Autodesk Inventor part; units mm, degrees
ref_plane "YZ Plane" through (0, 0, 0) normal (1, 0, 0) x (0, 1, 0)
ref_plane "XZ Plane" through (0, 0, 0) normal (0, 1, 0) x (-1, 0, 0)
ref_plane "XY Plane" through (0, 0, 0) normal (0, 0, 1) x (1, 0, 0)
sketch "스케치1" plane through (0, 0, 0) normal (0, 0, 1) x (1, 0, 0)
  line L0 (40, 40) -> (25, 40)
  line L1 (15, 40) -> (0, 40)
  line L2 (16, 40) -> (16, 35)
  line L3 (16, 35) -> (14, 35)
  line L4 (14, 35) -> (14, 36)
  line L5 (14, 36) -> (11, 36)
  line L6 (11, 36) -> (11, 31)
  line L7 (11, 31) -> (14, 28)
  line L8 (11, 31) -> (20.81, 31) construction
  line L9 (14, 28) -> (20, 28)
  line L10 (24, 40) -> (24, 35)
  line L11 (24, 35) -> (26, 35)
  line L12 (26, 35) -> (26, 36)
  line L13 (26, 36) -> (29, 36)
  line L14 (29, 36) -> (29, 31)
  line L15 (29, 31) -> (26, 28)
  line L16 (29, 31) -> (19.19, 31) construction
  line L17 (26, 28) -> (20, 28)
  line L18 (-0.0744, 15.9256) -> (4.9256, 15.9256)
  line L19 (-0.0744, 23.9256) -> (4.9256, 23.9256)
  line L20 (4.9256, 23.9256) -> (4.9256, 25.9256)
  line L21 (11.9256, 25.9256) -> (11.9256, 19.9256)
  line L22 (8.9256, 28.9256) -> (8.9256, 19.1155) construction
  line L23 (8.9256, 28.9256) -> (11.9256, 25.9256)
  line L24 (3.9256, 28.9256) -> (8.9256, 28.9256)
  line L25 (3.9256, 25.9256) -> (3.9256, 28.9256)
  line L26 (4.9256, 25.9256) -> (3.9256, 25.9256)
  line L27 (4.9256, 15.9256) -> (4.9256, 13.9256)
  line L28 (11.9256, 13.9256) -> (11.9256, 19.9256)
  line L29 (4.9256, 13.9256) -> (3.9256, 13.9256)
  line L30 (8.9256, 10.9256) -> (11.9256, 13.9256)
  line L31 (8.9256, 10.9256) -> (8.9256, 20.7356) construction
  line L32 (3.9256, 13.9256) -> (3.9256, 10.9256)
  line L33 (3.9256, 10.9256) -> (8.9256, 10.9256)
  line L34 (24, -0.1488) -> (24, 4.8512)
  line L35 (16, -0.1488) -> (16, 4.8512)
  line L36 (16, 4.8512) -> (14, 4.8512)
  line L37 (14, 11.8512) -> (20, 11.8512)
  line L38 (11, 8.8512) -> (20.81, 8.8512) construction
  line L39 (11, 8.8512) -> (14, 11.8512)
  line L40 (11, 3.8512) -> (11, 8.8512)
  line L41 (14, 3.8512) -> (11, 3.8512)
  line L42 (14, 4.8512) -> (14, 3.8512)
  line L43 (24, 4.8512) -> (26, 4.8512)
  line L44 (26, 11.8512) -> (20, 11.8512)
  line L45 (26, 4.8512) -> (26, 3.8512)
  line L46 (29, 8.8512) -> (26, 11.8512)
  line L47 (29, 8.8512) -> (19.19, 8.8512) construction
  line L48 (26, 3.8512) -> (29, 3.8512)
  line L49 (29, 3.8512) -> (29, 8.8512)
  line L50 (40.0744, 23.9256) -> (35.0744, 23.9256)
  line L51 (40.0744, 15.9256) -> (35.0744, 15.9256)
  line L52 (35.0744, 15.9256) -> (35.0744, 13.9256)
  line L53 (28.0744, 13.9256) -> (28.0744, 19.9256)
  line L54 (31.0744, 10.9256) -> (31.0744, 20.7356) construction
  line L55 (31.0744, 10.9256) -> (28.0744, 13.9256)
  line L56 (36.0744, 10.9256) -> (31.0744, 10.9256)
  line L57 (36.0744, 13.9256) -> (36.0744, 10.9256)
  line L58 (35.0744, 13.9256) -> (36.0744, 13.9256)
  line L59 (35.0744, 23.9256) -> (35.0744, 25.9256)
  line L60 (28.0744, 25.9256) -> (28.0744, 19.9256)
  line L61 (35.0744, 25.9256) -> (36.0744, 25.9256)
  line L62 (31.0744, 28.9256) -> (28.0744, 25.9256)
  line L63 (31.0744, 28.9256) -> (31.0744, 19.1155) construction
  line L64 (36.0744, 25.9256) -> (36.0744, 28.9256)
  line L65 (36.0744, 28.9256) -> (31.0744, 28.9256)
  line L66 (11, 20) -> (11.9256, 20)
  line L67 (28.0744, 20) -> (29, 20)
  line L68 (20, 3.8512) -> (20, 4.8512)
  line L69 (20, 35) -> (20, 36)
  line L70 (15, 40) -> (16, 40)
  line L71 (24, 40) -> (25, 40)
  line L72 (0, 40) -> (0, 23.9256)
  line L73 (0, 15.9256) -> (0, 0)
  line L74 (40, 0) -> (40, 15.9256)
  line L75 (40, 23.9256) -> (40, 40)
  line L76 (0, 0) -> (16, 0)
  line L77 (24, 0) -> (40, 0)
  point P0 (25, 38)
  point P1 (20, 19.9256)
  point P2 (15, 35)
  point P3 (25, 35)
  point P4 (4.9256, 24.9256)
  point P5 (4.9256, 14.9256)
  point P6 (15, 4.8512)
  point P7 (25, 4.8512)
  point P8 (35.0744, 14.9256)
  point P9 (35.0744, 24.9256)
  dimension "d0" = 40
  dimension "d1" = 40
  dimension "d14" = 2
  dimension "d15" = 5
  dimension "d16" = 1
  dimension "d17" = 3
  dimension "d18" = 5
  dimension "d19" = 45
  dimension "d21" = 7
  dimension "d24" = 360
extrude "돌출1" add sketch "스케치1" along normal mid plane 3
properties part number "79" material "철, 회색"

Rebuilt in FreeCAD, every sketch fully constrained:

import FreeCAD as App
import Part
import Sketcher
from FreeCAD import Vector
Q = App.Units.Quantity

doc = App.newDocument("Part")
body = doc.addObject("PartDesign::Body", "Body")

# Sketch on XY plane
sketch1 = body.newObject("Sketcher::SketchObject", "Sketch")
sketch1.AttachmentSupport = (doc.getObject("XY_Plane"), [""])
sketch1.MapMode = "FlatFace"
sketch1.addGeometry([
    Part.LineSegment(Vector(40, 23.9256, 0), Vector(40, 40, 0)),  # 0
    Part.LineSegment(Vector(40, 40, 0), Vector(24, 40, 0)),  # 1
    Part.LineSegment(Vector(24, 40, 0), Vector(24, 35, 0)),  # 2
    Part.LineSegment(Vector(24, 35, 0), Vector(26, 35, 0)),  # 3
    Part.LineSegment(Vector(26, 35, 0), Vector(26, 36, 0)),  # 4
    Part.LineSegment(Vector(26, 36, 0), Vector(29, 36, 0)),  # 5
    Part.LineSegment(Vector(29, 36, 0), Vector(29, 31, 0)),  # 6
    Part.LineSegment(Vector(29, 31, 0), Vector(26, 28, 0)),  # 7
    Part.LineSegment(Vector(26, 28, 0), Vector(14, 28, 0)),  # 8
    Part.LineSegment(Vector(14, 28, 0), Vector(11, 31, 0)),  # 9
    Part.LineSegment(Vector(11, 31, 0), Vector(11, 36, 0)),  # 10
    Part.LineSegment(Vector(11, 36, 0), Vector(14, 36, 0)),  # 11
    Part.LineSegment(Vector(14, 36, 0), Vector(14, 35, 0)),  # 12
    Part.LineSegment(Vector(14, 35, 0), Vector(16, 35, 0)),  # 13
    Part.LineSegment(Vector(16, 35, 0), Vector(16, 40, 0)),  # 14
    Part.LineSegment(Vector(16, 40, 0), Vector(0, 40, 0)),  # 15
    Part.LineSegment(Vector(0, 40, 0), Vector(0, 23.9256, 0)),  # 16
    Part.LineSegment(Vector(0, 23.9256, 0), Vector(4.9256, 23.9256, 0)),  # 17
    Part.LineSegment(Vector(4.9256, 23.9256, 0), Vector(4.9256, 25.9256, 0)),  # 18
    Part.LineSegment(Vector(4.9256, 25.9256, 0), Vector(3.9256, 25.9256, 0)),  # 19
    Part.LineSegment(Vector(3.9256, 25.9256, 0), Vector(3.9256, 28.9256, 0)),  # 20
    Part.LineSegment(Vector(3.9256, 28.9256, 0), Vector(8.9256, 28.9256, 0)),  # 21
    Part.LineSegment(Vector(8.9256, 28.9256, 0), Vector(11.9256, 25.9256, 0)),  # 22
    Part.LineSegment(Vector(11.9256, 25.9256, 0), Vector(11.9256, 13.9256, 0)),  # 23
    Part.LineSegment(Vector(11.9256, 13.9256, 0), Vector(8.9256, 10.9256, 0)),  # 24
    Part.LineSegment(Vector(8.9256, 10.9256, 0), Vector(3.9256, 10.9256, 0)),  # 25
    Part.LineSegment(Vector(3.9256, 10.9256, 0), Vector(3.9256, 13.9256, 0)),  # 26
    Part.LineSegment(Vector(3.9256, 13.9256, 0), Vector(4.9256, 13.9256, 0)),  # 27
    Part.LineSegment(Vector(4.9256, 13.9256, 0), Vector(4.9256, 15.9256, 0)),  # 28
    Part.LineSegment(Vector(4.9256, 15.9256, 0), Vector(0, 15.9256, 0)),  # 29
    Part.LineSegment(Vector(0, 15.9256, 0), Vector(0, 0, 0)),  # 30
    Part.LineSegment(Vector(0, 0, 0), Vector(16, 0, 0)),  # 31
    Part.LineSegment(Vector(16, 0, 0), Vector(16, 4.8512, 0)),  # 32
    Part.LineSegment(Vector(16, 4.8512, 0), Vector(14, 4.8512, 0)),  # 33
    Part.LineSegment(Vector(14, 4.8512, 0), Vector(14, 3.8512, 0)),  # 34
    Part.LineSegment(Vector(14, 3.8512, 0), Vector(11, 3.8512, 0)),  # 35
    Part.LineSegment(Vector(11, 3.8512, 0), Vector(11, 8.8512, 0)),  # 36
    Part.LineSegment(Vector(11, 8.8512, 0), Vector(14, 11.8512, 0)),  # 37
    Part.LineSegment(Vector(14, 11.8512, 0), Vector(26, 11.8512, 0)),  # 38
    Part.LineSegment(Vector(26, 11.8512, 0), Vector(29, 8.8512, 0)),  # 39
    Part.LineSegment(Vector(29, 8.8512, 0), Vector(29, 3.8512, 0)),  # 40
    Part.LineSegment(Vector(29, 3.8512, 0), Vector(26, 3.8512, 0)),  # 41
    Part.LineSegment(Vector(26, 3.8512, 0), Vector(26, 4.8512, 0)),  # 42
    Part.LineSegment(Vector(26, 4.8512, 0), Vector(24, 4.8512, 0)),  # 43
    Part.LineSegment(Vector(24, 4.8512, 0), Vector(24, 0, 0)),  # 44
    Part.LineSegment(Vector(24, 0, 0), Vector(40, 0, 0)),  # 45
    Part.LineSegment(Vector(40, 0, 0), Vector(40, 15.9256, 0)),  # 46
    Part.LineSegment(Vector(40, 15.9256, 0), Vector(35.0744, 15.9256, 0)),  # 47
    Part.LineSegment(Vector(35.0744, 15.9256, 0), Vector(35.0744, 13.9256, 0)),  # 48
    Part.LineSegment(Vector(35.0744, 13.9256, 0), Vector(36.0744, 13.9256, 0)),  # 49
    Part.LineSegment(Vector(36.0744, 13.9256, 0), Vector(36.0744, 10.9256, 0)),  # 50
    Part.LineSegment(Vector(36.0744, 10.9256, 0), Vector(31.0744, 10.9256, 0)),  # 51
    Part.LineSegment(Vector(31.0744, 10.9256, 0), Vector(28.0744, 13.9256, 0)),  # 52
    Part.LineSegment(Vector(28.0744, 13.9256, 0), Vector(28.0744, 25.9256, 0)),  # 53
    Part.LineSegment(Vector(28.0744, 25.9256, 0), Vector(31.0744, 28.9256, 0)),  # 54
    Part.LineSegment(Vector(31.0744, 28.9256, 0), Vector(36.0744, 28.9256, 0)),  # 55
    Part.LineSegment(Vector(36.0744, 28.9256, 0), Vector(36.0744, 25.9256, 0)),  # 56
    Part.LineSegment(Vector(36.0744, 25.9256, 0), Vector(35.0744, 25.9256, 0)),  # 57
    Part.LineSegment(Vector(35.0744, 25.9256, 0), Vector(35.0744, 23.9256, 0)),  # 58
    Part.LineSegment(Vector(35.0744, 23.9256, 0), Vector(40, 23.9256, 0)),  # 59
], False)
sketch1.addConstraint([
    Sketcher.Constraint("Coincident", 0, 2, 1, 1),
    Sketcher.Constraint("Coincident", 1, 2, 2, 1),
    Sketcher.Constraint("Coincident", 2, 2, 3, 1),
    Sketcher.Constraint("Coincident", 3, 2, 4, 1),
    Sketcher.Constraint("Coincident", 4, 2, 5, 1),
    Sketcher.Constraint("Coincident", 5, 2, 6, 1),
    Sketcher.Constraint("Coincident", 6, 2, 7, 1),
    Sketcher.Constraint("Coincident", 7, 2, 8, 1),
    Sketcher.Constraint("Coincident", 8, 2, 9, 1),
    Sketcher.Constraint("Coincident", 9, 2, 10, 1),
    Sketcher.Constraint("Coincident", 10, 2, 11, 1),
    Sketcher.Constraint("Coincident", 11, 2, 12, 1),
    Sketcher.Constraint("Coincident", 12, 2, 13, 1),
    Sketcher.Constraint("Coincident", 13, 2, 14, 1),
    Sketcher.Constraint("Coincident", 14, 2, 15, 1),
    Sketcher.Constraint("Coincident", 15, 2, 16, 1),
    Sketcher.Constraint("Coincident", 16, 2, 17, 1),
    Sketcher.Constraint("Coincident", 17, 2, 18, 1),
    Sketcher.Constraint("Coincident", 18, 2, 19, 1),
    Sketcher.Constraint("Coincident", 19, 2, 20, 1),
    Sketcher.Constraint("Coincident", 20, 2, 21, 1),
    Sketcher.Constraint("Coincident", 21, 2, 22, 1),
    Sketcher.Constraint("Coincident", 22, 2, 23, 1),
    Sketcher.Constraint("Coincident", 23, 2, 24, 1),
    Sketcher.Constraint("Coincident", 24, 2, 25, 1),
    Sketcher.Constraint("Coincident", 25, 2, 26, 1),
    Sketcher.Constraint("Coincident", 26, 2, 27, 1),
    Sketcher.Constraint("Coincident", 27, 2, 28, 1),
    Sketcher.Constraint("Coincident", 28, 2, 29, 1),
    Sketcher.Constraint("Coincident", 29, 2, 30, 1),
    Sketcher.Constraint("Coincident", 30, 2, 31, 1),
    Sketcher.Constraint("Coincident", 31, 2, 32, 1),
    Sketcher.Constraint("Coincident", 32, 2, 33, 1),
    Sketcher.Constraint("Coincident", 33, 2, 34, 1),
    Sketcher.Constraint("Coincident", 34, 2, 35, 1),
    Sketcher.Constraint("Coincident", 35, 2, 36, 1),
    Sketcher.Constraint("Coincident", 36, 2, 37, 1),
    Sketcher.Constraint("Coincident", 37, 2, 38, 1),
    Sketcher.Constraint("Coincident", 38, 2, 39, 1),
    Sketcher.Constraint("Coincident", 39, 2, 40, 1),
    Sketcher.Constraint("Coincident", 40, 2, 41, 1),
    Sketcher.Constraint("Coincident", 41, 2, 42, 1),
    Sketcher.Constraint("Coincident", 42, 2, 43, 1),
    Sketcher.Constraint("Coincident", 43, 2, 44, 1),
    Sketcher.Constraint("Coincident", 44, 2, 45, 1),
    Sketcher.Constraint("Coincident", 45, 2, 46, 1),
    Sketcher.Constraint("Coincident", 46, 2, 47, 1),
    Sketcher.Constraint("Coincident", 47, 2, 48, 1),
    Sketcher.Constraint("Coincident", 48, 2, 49, 1),
    Sketcher.Constraint("Coincident", 49, 2, 50, 1),
    Sketcher.Constraint("Coincident", 50, 2, 51, 1),
    Sketcher.Constraint("Coincident", 51, 2, 52, 1),
    Sketcher.Constraint("Coincident", 52, 2, 53, 1),
    Sketcher.Constraint("Coincident", 53, 2, 54, 1),
    Sketcher.Constraint("Coincident", 54, 2, 55, 1),
    Sketcher.Constraint("Coincident", 55, 2, 56, 1),
    Sketcher.Constraint("Coincident", 56, 2, 57, 1),
    Sketcher.Constraint("Coincident", 57, 2, 58, 1),
    Sketcher.Constraint("Coincident", 58, 2, 59, 1),
    Sketcher.Constraint("Coincident", 59, 2, 0, 1),
    Sketcher.Constraint("Vertical", 0),
    Sketcher.Constraint("Horizontal", 1),
    Sketcher.Constraint("Vertical", 2),
    Sketcher.Constraint("Horizontal", 3),
    Sketcher.Constraint("Vertical", 4),
    Sketcher.Constraint("Horizontal", 5),
    Sketcher.Constraint("Vertical", 6),
    Sketcher.Constraint("Horizontal", 8),
    Sketcher.Constraint("Vertical", 10),
    Sketcher.Constraint("Horizontal", 11),
    Sketcher.Constraint("Vertical", 12),
    Sketcher.Constraint("Horizontal", 13),
    Sketcher.Constraint("Vertical", 14),
    Sketcher.Constraint("Horizontal", 15),
    Sketcher.Constraint("Vertical", 16),
    Sketcher.Constraint("Horizontal", 17),
    Sketcher.Constraint("Vertical", 18),
    Sketcher.Constraint("Horizontal", 19),
    Sketcher.Constraint("Vertical", 20),
    Sketcher.Constraint("Horizontal", 21),
    Sketcher.Constraint("Vertical", 23),
    Sketcher.Constraint("Horizontal", 25),
    Sketcher.Constraint("Vertical", 26),
    Sketcher.Constraint("Horizontal", 27),
    Sketcher.Constraint("Vertical", 28),
    Sketcher.Constraint("Horizontal", 29),
    Sketcher.Constraint("Vertical", 30),
    Sketcher.Constraint("Horizontal", 31),
    Sketcher.Constraint("Vertical", 32),
    Sketcher.Constraint("Horizontal", 33),
    Sketcher.Constraint("Vertical", 34),
    Sketcher.Constraint("Horizontal", 35),
    Sketcher.Constraint("Vertical", 36),
    Sketcher.Constraint("Horizontal", 38),
    Sketcher.Constraint("Vertical", 40),
    Sketcher.Constraint("Horizontal", 41),
    Sketcher.Constraint("Vertical", 42),
    Sketcher.Constraint("Horizontal", 43),
    Sketcher.Constraint("Vertical", 44),
    Sketcher.Constraint("Horizontal", 45),
    Sketcher.Constraint("Vertical", 46),
    Sketcher.Constraint("Horizontal", 47),
    Sketcher.Constraint("Vertical", 48),
    Sketcher.Constraint("Horizontal", 49),
    Sketcher.Constraint("Vertical", 50),
    Sketcher.Constraint("Horizontal", 51),
    Sketcher.Constraint("Vertical", 53),
    Sketcher.Constraint("Horizontal", 55),
    Sketcher.Constraint("Vertical", 56),
    Sketcher.Constraint("Horizontal", 57),
    Sketcher.Constraint("Vertical", 58),
    Sketcher.Constraint("Horizontal", 59),
    Sketcher.Constraint("Coincident", 30, 2, -1, 1),
    Sketcher.Constraint("PointOnObject", 15, 2, -2),
    Sketcher.Constraint("PointOnObject", 44, 2, -1),
    Sketcher.Constraint("Perpendicular", 7, 9),
    Sketcher.Constraint("Parallel", 9, 22),
    Sketcher.Constraint("Perpendicular", 22, 24),
    Sketcher.Constraint("Parallel", 24, 37),
    Sketcher.Constraint("Perpendicular", 37, 39),
    Sketcher.Constraint("Parallel", 39, 52),
    Sketcher.Constraint("Perpendicular", 52, 54),
    Sketcher.Constraint("Horizontal", 6, 2, 9, 2),
    Sketcher.Constraint("Horizontal", 5, 2, 10, 2),
    Sketcher.Constraint("Horizontal", 3, 2, 12, 2),
    Sketcher.Constraint("Horizontal", 1, 2, 14, 2),
    Sketcher.Constraint("Horizontal", 19, 2, 22, 2),
    Sketcher.Constraint("Horizontal", 23, 2, 26, 2),
    Sketcher.Constraint("Horizontal", 36, 2, 39, 2),
    Sketcher.Constraint("Horizontal", 35, 2, 40, 2),
    Sketcher.Constraint("Horizontal", 33, 2, 42, 2),
    Sketcher.Constraint("Horizontal", 29, 2, 46, 2),
    Sketcher.Constraint("Horizontal", 27, 2, 48, 2),
    Sketcher.Constraint("Horizontal", 25, 2, 50, 2),
    Sketcher.Constraint("Horizontal", 49, 2, 52, 2),
    Sketcher.Constraint("Horizontal", 22, 2, 53, 2),
    Sketcher.Constraint("Horizontal", 21, 2, 54, 2),
    Sketcher.Constraint("Horizontal", 53, 2, 56, 2),
    Sketcher.Constraint("Horizontal", 17, 2, 58, 2),
    Sketcher.Constraint("Vertical", 4, 2, 7, 2),
    Sketcher.Constraint("Vertical", 8, 2, 11, 2),
    Sketcher.Constraint("Vertical", 21, 2, 24, 2),
    Sketcher.Constraint("Vertical", 20, 2, 25, 2),
    Sketcher.Constraint("Vertical", 18, 2, 27, 2),
    Sketcher.Constraint("Vertical", 14, 2, 31, 2),
    Sketcher.Constraint("Vertical", 12, 2, 33, 2),
    Sketcher.Constraint("Vertical", 10, 2, 35, 2),
    Sketcher.Constraint("Vertical", 34, 2, 37, 2),
    Sketcher.Constraint("Vertical", 7, 2, 38, 2),
    Sketcher.Constraint("Vertical", 6, 2, 39, 2),
    Sketcher.Constraint("Vertical", 38, 2, 41, 2),
    Sketcher.Constraint("Vertical", 2, 2, 43, 2),
    Sketcher.Constraint("Vertical", 0, 2, 45, 2),
    Sketcher.Constraint("Vertical", 50, 2, 55, 2),
    Sketcher.Constraint("Vertical", 48, 2, 57, 2),
    Sketcher.Constraint("Equal", 3, 13),
    Sketcher.Constraint("Equal", 1, 15),
    Sketcher.Constraint("Equal", 29, 47),
    Sketcher.Constraint("Equal", 27, 49),
    Sketcher.Constraint("Equal", 25, 51),
    Sketcher.Constraint("Equal", 55, 2),
    Sketcher.Constraint("Equal", 57, 4),
    Sketcher.Constraint("Equal", 2, 6),
    Sketcher.Constraint("Equal", 43, 18),
    Sketcher.Constraint("Equal", 41, 20),
    Sketcher.Constraint("Equal", 38, 23),
    Sketcher.Constraint("Equal", 18, 28),
    Sketcher.Constraint("Equal", 12, 34),
    Sketcher.Constraint("Equal", 14, 36),
    Sketcher.Constraint("DistanceX", 3, 1, 3, 2, Q("2 mm")),
    Sketcher.Constraint("DistanceX", 5, 1, 5, 2, Q("3 mm")),
    Sketcher.Constraint("DistanceX", 19, 2, 19, 1, Q("1 mm")),
    Sketcher.Constraint("DistanceX", 21, 1, 21, 2, Q("5 mm")),
    Sketcher.Constraint("DistanceX", -1, 1, 0, 2, Q("40 mm")),
    Sketcher.Constraint("DistanceY", -1, 1, 0, 2, Q("40 mm")),
    Sketcher.Constraint("DistanceX", 1, 2, 1, 1, Q("16 mm")),
    Sketcher.Constraint("DistanceX", 17, 1, 17, 2, Q("4.9256 mm")),
    Sketcher.Constraint("DistanceY", 0, 1, 0, 2, Q("16.0744 mm")),
    Sketcher.Constraint("DistanceY", 32, 1, 32, 2, Q("4.8512 mm")),
])
pad1 = body.newObject("PartDesign::Pad", "Pad")
pad1.Profile = sketch1
pad1.Length = 3
pad1.Midplane = True

doc.recompute()
